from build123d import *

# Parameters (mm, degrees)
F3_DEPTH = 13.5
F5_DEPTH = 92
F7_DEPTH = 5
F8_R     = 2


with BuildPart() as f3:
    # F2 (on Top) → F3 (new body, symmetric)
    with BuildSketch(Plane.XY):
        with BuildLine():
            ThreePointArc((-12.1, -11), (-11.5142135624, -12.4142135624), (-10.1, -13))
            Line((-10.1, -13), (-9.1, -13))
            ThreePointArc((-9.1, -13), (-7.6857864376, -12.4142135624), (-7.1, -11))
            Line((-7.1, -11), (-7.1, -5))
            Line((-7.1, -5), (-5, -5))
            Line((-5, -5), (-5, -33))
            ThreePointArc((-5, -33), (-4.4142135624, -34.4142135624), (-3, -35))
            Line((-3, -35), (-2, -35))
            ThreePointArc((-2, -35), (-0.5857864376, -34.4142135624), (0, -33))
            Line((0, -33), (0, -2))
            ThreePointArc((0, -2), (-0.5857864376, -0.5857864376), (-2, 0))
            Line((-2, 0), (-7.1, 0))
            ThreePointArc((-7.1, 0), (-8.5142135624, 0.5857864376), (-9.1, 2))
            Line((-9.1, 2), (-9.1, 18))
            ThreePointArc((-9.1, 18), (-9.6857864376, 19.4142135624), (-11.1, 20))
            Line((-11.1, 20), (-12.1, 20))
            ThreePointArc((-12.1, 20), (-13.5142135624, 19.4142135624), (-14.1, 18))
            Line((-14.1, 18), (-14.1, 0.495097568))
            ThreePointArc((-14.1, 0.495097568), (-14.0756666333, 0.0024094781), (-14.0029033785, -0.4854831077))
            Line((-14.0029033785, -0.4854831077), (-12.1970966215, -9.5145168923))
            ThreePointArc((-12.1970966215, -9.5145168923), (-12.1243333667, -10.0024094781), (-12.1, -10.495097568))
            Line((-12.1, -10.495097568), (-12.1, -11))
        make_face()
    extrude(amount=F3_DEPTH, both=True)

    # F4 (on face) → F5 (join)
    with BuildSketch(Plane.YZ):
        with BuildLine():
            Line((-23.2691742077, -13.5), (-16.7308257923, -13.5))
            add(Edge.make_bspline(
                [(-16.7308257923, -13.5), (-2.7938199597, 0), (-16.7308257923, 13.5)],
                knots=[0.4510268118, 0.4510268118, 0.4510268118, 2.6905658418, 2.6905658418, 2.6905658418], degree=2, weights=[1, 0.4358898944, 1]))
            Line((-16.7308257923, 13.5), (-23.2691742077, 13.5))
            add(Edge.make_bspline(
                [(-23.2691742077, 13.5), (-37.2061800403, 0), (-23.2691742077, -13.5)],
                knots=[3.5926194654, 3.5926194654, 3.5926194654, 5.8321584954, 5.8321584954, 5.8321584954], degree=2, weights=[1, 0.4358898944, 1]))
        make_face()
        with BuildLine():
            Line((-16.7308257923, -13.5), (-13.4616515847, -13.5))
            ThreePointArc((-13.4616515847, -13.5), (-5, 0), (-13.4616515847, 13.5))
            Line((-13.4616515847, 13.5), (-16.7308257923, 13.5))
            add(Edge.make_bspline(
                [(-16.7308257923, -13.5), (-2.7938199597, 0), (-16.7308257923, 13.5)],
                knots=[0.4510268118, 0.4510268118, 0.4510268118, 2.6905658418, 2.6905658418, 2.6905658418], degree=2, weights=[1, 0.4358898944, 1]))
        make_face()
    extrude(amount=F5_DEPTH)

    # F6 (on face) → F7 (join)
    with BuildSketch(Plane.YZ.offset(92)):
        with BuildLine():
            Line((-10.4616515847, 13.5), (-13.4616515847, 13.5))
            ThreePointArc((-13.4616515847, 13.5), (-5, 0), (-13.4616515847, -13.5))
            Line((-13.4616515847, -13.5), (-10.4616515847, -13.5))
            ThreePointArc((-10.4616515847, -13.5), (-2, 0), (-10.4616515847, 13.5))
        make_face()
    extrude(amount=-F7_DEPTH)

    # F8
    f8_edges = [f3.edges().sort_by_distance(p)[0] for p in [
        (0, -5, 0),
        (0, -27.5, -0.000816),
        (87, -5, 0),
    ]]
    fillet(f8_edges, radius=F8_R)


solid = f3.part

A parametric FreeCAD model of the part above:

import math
import FreeCAD as App
import Part
import Sketcher
from FreeCAD import Vector
Q = App.Units.Quantity


def edges_at(feature, points):
    """Names of the edges that pass closest to the given points."""
    edges = feature.Shape.Edges
    near = lambda p: min(range(len(edges)), key=lambda i: edges[i].distToShape(Part.Vertex(*p))[0])
    return sorted({f"Edge{near(p) + 1}" for p in points})

doc = App.newDocument("Part")
body = doc.addObject("PartDesign::Body", "Body")

# Sketch on XY plane
sketch1 = body.newObject("Sketcher::SketchObject", "Sketch")
sketch1.AttachmentSupport = (doc.getObject("XY_Plane"), [""])
sketch1.MapMode = "FlatFace"
sketch1.addGeometry(Part.ArcOfCircle(Part.Circle(Vector(-10.1, -11, 0), Vector(0, 0, 1), 2), math.radians(180), math.radians(270)), False)
sketch1.addGeometry(Part.LineSegment(Vector(-10.1, -13, 0), Vector(-9.1, -13, 0)), False)
sketch1.addGeometry(Part.ArcOfCircle(Part.Circle(Vector(-9.1, -11, 0), Vector(0, 0, 1), 2), math.radians(-90), math.radians(0)), False)
sketch1.addGeometry(Part.LineSegment(Vector(-7.1, -11, 0), Vector(-7.1, -5, 0)), False)
sketch1.addGeometry(Part.LineSegment(Vector(-7.1, -5, 0), Vector(-5, -5, 0)), False)
sketch1.addGeometry(Part.LineSegment(Vector(-5, -5, 0), Vector(-5, -33, 0)), False)
sketch1.addGeometry(Part.ArcOfCircle(Part.Circle(Vector(-3, -33, 0), Vector(0, 0, 1), 2), math.radians(180), math.radians(270)), False)
sketch1.addGeometry(Part.LineSegment(Vector(-3, -35, 0), Vector(-2, -35, 0)), False)
sketch1.addGeometry(Part.ArcOfCircle(Part.Circle(Vector(-2, -33, 0), Vector(0, 0, 1), 2), math.radians(-90), math.radians(0)), False)
sketch1.addGeometry(Part.LineSegment(Vector(0, -33, 0), Vector(0, -2, 0)), False)
sketch1.addGeometry(Part.ArcOfCircle(Part.Circle(Vector(-2, -2, 0), Vector(0, 0, 1), 2), math.radians(0), math.radians(90)), False)
sketch1.addGeometry(Part.LineSegment(Vector(-2, 0, 0), Vector(-7.1, 0, 0)), False)
sketch1.addGeometry(Part.ArcOfCircle(Part.Circle(Vector(-7.1, 2, 0), Vector(0, 0, 1), 2), math.radians(180), math.radians(270)), False)
sketch1.addGeometry(Part.LineSegment(Vector(-9.1, 2, 0), Vector(-9.1, 18, 0)), False)
sketch1.addGeometry(Part.ArcOfCircle(Part.Circle(Vector(-11.1, 18, 0), Vector(0, 0, 1), 2), math.radians(0), math.radians(90)), False)
sketch1.addGeometry(Part.LineSegment(Vector(-11.1, 20, 0), Vector(-12.1, 20, 0)), False)
sketch1.addGeometry(Part.ArcOfCircle(Part.Circle(Vector(-12.1, 18, 0), Vector(0, 0, 1), 2), math.radians(90), math.radians(180)), False)
sketch1.addGeometry(Part.LineSegment(Vector(-14.1, 18, 0), Vector(-14.1, 0.5, 0)), False)
sketch1.addGeometry(Part.ArcOfCircle(Part.Circle(Vector(-9.1, 0.5, 0), Vector(0, 0, 1), 5), math.radians(-180), math.radians(-168.69)), False)
sketch1.addGeometry(Part.LineSegment(Vector(-14, -0.5, 0), Vector(-12.2, -9.5, 0)), False)
sketch1.addGeometry(Part.ArcOfCircle(Part.Circle(Vector(-17.1, -10.5, 0), Vector(0, 0, 1), 5), math.radians(0), math.radians(11.31)), False)
sketch1.addGeometry(Part.LineSegment(Vector(-12.1, -10.5, 0), Vector(-12.1, -11, 0)), False)
sketch1.addConstraint(Sketcher.Constraint("Tangent", 0, 2, 1, 1))
sketch1.addConstraint(Sketcher.Constraint("Tangent", 1, 2, 2, 1))
sketch1.addConstraint(Sketcher.Constraint("Tangent", 2, 2, 3, 1))
sketch1.addConstraint(Sketcher.Constraint("Coincident", 3, 2, 4, 1))
sketch1.addConstraint(Sketcher.Constraint("Coincident", 4, 2, 5, 1))
sketch1.addConstraint(Sketcher.Constraint("Tangent", 5, 2, 6, 1))
sketch1.addConstraint(Sketcher.Constraint("Tangent", 6, 2, 7, 1))
sketch1.addConstraint(Sketcher.Constraint("Tangent", 7, 2, 8, 1))
sketch1.addConstraint(Sketcher.Constraint("Tangent", 8, 2, 9, 1))
sketch1.addConstraint(Sketcher.Constraint("Tangent", 9, 2, 10, 1))
sketch1.addConstraint(Sketcher.Constraint("Tangent", 10, 2, 11, 1))
sketch1.addConstraint(Sketcher.Constraint("Tangent", 11, 2, 12, 2))
sketch1.addConstraint(Sketcher.Constraint("Tangent", 12, 1, 13, 1))
sketch1.addConstraint(Sketcher.Constraint("Tangent", 13, 2, 14, 1))
sketch1.addConstraint(Sketcher.Constraint("Tangent", 14, 2, 15, 1))
sketch1.addConstraint(Sketcher.Constraint("Tangent", 15, 2, 16, 1))
sketch1.addConstraint(Sketcher.Constraint("Tangent", 16, 2, 17, 1))
sketch1.addConstraint(Sketcher.Constraint("Tangent", 17, 2, 18, 1))
sketch1.addConstraint(Sketcher.Constraint("Tangent", 18, 2, 19, 1))
sketch1.addConstraint(Sketcher.Constraint("Tangent", 19, 2, 20, 2))
sketch1.addConstraint(Sketcher.Constraint("Tangent", 20, 1, 21, 1))
sketch1.addConstraint(Sketcher.Constraint("Tangent", 21, 2, 0, 1))
sketch1.addConstraint(Sketcher.Constraint("Horizontal", 1))
sketch1.addConstraint(Sketcher.Constraint("Vertical", 3))
sketch1.addConstraint(Sketcher.Constraint("Horizontal", 4))
sketch1.addConstraint(Sketcher.Constraint("Vertical", 5))
sketch1.addConstraint(Sketcher.Constraint("Horizontal", 7))
sketch1.addConstraint(Sketcher.Constraint("Vertical", 9))
sketch1.addConstraint(Sketcher.Constraint("Horizontal", 11))
sketch1.addConstraint(Sketcher.Constraint("Vertical", 13))
sketch1.addConstraint(Sketcher.Constraint("Horizontal", 15))
sketch1.addConstraint(Sketcher.Constraint("Vertical", 17))
sketch1.addConstraint(Sketcher.Constraint("Vertical", 21))
sketch1.addConstraint(Sketcher.Constraint("Equal", 0, 2))
sketch1.addConstraint(Sketcher.Constraint("Equal", 2, 6))
sketch1.addConstraint(Sketcher.Constraint("Equal", 6, 8))
sketch1.addConstraint(Sketcher.Constraint("Equal", 8, 10))
sketch1.addConstraint(Sketcher.Constraint("Equal", 10, 12))
sketch1.addConstraint(Sketcher.Constraint("Equal", 12, 14))
sketch1.addConstraint(Sketcher.Constraint("Equal", 14, 16))
sketch1.addConstraint(Sketcher.Constraint("Equal", 18, 20))
sketch1.addConstraint(Sketcher.Constraint("PointOnObject", 8, 2, -2))
sketch1.addConstraint(Sketcher.Constraint("PointOnObject", 10, 2, -1))
sketch1.addConstraint(Sketcher.Constraint("Vertical", 2, 3, 18, 3))
sketch1.addConstraint(Sketcher.Constraint("Vertical", 12, 3, 2, 2))
sketch1.addConstraint(Sketcher.Constraint("Vertical", 15, 2, 20, 1))
sketch1.addConstraint(Sketcher.Constraint("Equal", 1, 7))
sketch1.addConstraint(Sketcher.Constraint("Radius", 0, Q("2 mm")))
sketch1.addConstraint(Sketcher.Constraint("Radius", 18, Q("5 mm")))
sketch1.addConstraint(Sketcher.Constraint("DistanceY", 3, 1, 3, 2, Q("6 mm")))
sketch1.addConstraint(Sketcher.Constraint("DistanceY", 5, 2, 5, 1, Q("28 mm")))
sketch1.addConstraint(Sketcher.Constraint("DistanceY", 9, 1, 9, 2, Q("31 mm")))
sketch1.addConstraint(Sketcher.Constraint("DistanceY", 13, 1, 13, 2, Q("16 mm")))
sketch1.addConstraint(Sketcher.Constraint("DistanceX", 4, 1, 4, 2, Q("2.1 mm")))
sketch1.addConstraint(Sketcher.Constraint("DistanceY", 17, 2, 17, 1, Q("17.504902 mm")))
sketch1.addConstraint(Sketcher.Constraint("DistanceY", 21, 2, 21, 1, Q("0.504902 mm")))
pad1 = body.newObject("PartDesign::Pad", "Pad")
pad1.Profile = sketch1
pad1.Length = 27
pad1.Midplane = True

# Sketch on YZ plane
sketch2 = body.newObject("Sketcher::SketchObject", "Sketch001")
sketch2.AttachmentSupport = (doc.getObject("YZ_Plane"), [""])
sketch2.MapMode = "FlatFace"
sketch2.addGeometry(Part.LineSegment(Vector(-23.269174, -13.5, 0), Vector(-13.461652, -13.5, 0)), False)
sketch2.addGeometry(Part.ArcOfCircle(Part.Circle(Vector(-20, 0, 0), Vector(0, 0, 1), 15), math.radians(-64.158067), math.radians(64.158067)), False)
sketch2.addGeometry(Part.LineSegment(Vector(-13.461652, 13.5, 0), Vector(-23.269174, 13.5, 0)), False)
sketch2.addGeometry(Part.BSplineCurve([Vector(-23.269174, 13.5, 0), Vector(-37.20618, 0, 0), Vector(-23.269174, -13.5, 0)], [3, 3], [3.592619465, 5.832158495], False, 2, [1, 0.435889894, 1], False), False)
sketch2.addConstraint(Sketcher.Constraint("Block", 3))
sketch2.addConstraint(Sketcher.Constraint("Coincident", 0, 2, 1, 1))
sketch2.addConstraint(Sketcher.Constraint("Coincident", 1, 2, 2, 1))
sketch2.addConstraint(Sketcher.Constraint("Coincident", 2, 2, 3, 1))
sketch2.addConstraint(Sketcher.Constraint("Coincident", 3, 2, 0, 1))
sketch2.addConstraint(Sketcher.Constraint("Horizontal", 0))
sketch2.addConstraint(Sketcher.Constraint("Horizontal", 2))
sketch2.addConstraint(Sketcher.Constraint("PointOnObject", 1, 3, -1))
sketch2.addConstraint(Sketcher.Constraint("Radius", 1, Q("15 mm")))
sketch2.addConstraint(Sketcher.Constraint("DistanceX", 1, 3, -1, 1, Q("20 mm")))
pad2 = body.newObject("PartDesign::Pad", "Pad001")
pad2.Profile = sketch2
pad2.Length = 92

# Sketch on YZ plane
sketch3 = body.newObject("Sketcher::SketchObject", "Sketch002")
sketch3.AttachmentSupport = (doc.getObject("YZ_Plane"), [""])
sketch3.MapMode = "FlatFace"
sketch3.AttachmentOffset = App.Placement(Vector(0, 0, 92), App.Rotation())
sketch3.addGeometry(Part.LineSegment(Vector(-10.5, 13.5, 0), Vector(-13.5, 13.5, 0)), False)
sketch3.addGeometry(Part.ArcOfCircle(Part.Circle(Vector(-20, 0, 0), Vector(0, 0, 1), 15), math.radians(-64), math.radians(64)), False)
sketch3.addGeometry(Part.LineSegment(Vector(-13.5, -13.5, 0), Vector(-10.5, -13.5, 0)), False)
sketch3.addGeometry(Part.ArcOfCircle(Part.Circle(Vector(-17, 0, 0), Vector(0, 0, 1), 15), math.radians(-64), math.radians(64)), False)
sketch3.addConstraint(Sketcher.Constraint("Coincident", 0, 2, 1, 2))
sketch3.addConstraint(Sketcher.Constraint("Coincident", 1, 1, 2, 1))
sketch3.addConstraint(Sketcher.Constraint("Coincident", 2, 2, 3, 1))
sketch3.addConstraint(Sketcher.Constraint("Coincident", 3, 2, 0, 1))
sketch3.addConstraint(Sketcher.Constraint("Horizontal", 0))
sketch3.addConstraint(Sketcher.Constraint("Horizontal", 2))
sketch3.addConstraint(Sketcher.Constraint("Equal", 1, 3))
sketch3.addConstraint(Sketcher.Constraint("Symmetric", 0, 2, 1, 1, -1))
sketch3.addConstraint(Sketcher.Constraint("PointOnObject", 3, 3, -1))
sketch3.addConstraint(Sketcher.Constraint("Radius", 1, Q("15 mm")))
sketch3.addConstraint(Sketcher.Constraint("DistanceX", 0, 2, 0, 1, Q("3 mm")))
sketch3.addConstraint(Sketcher.Constraint("DistanceX", 1, 3, -1, 1, Q("20 mm")))
sketch3.addConstraint(Sketcher.Constraint("DistanceY", 1, 1, 0, 2, Q("27 mm")))
pad3 = body.newObject("PartDesign::Pad", "Pad002")
pad3.Profile = sketch3
pad3.Length = 5
pad3.Reversed = True
doc.recompute()

fillet = body.newObject("PartDesign::Fillet", "Fillet")
fillet.Base = (pad3, edges_at(pad3, [(0, -5, 0), (0, -27.5, -0.001), (87, -5, 0)]))
fillet.Radius = 2

doc.recompute()
